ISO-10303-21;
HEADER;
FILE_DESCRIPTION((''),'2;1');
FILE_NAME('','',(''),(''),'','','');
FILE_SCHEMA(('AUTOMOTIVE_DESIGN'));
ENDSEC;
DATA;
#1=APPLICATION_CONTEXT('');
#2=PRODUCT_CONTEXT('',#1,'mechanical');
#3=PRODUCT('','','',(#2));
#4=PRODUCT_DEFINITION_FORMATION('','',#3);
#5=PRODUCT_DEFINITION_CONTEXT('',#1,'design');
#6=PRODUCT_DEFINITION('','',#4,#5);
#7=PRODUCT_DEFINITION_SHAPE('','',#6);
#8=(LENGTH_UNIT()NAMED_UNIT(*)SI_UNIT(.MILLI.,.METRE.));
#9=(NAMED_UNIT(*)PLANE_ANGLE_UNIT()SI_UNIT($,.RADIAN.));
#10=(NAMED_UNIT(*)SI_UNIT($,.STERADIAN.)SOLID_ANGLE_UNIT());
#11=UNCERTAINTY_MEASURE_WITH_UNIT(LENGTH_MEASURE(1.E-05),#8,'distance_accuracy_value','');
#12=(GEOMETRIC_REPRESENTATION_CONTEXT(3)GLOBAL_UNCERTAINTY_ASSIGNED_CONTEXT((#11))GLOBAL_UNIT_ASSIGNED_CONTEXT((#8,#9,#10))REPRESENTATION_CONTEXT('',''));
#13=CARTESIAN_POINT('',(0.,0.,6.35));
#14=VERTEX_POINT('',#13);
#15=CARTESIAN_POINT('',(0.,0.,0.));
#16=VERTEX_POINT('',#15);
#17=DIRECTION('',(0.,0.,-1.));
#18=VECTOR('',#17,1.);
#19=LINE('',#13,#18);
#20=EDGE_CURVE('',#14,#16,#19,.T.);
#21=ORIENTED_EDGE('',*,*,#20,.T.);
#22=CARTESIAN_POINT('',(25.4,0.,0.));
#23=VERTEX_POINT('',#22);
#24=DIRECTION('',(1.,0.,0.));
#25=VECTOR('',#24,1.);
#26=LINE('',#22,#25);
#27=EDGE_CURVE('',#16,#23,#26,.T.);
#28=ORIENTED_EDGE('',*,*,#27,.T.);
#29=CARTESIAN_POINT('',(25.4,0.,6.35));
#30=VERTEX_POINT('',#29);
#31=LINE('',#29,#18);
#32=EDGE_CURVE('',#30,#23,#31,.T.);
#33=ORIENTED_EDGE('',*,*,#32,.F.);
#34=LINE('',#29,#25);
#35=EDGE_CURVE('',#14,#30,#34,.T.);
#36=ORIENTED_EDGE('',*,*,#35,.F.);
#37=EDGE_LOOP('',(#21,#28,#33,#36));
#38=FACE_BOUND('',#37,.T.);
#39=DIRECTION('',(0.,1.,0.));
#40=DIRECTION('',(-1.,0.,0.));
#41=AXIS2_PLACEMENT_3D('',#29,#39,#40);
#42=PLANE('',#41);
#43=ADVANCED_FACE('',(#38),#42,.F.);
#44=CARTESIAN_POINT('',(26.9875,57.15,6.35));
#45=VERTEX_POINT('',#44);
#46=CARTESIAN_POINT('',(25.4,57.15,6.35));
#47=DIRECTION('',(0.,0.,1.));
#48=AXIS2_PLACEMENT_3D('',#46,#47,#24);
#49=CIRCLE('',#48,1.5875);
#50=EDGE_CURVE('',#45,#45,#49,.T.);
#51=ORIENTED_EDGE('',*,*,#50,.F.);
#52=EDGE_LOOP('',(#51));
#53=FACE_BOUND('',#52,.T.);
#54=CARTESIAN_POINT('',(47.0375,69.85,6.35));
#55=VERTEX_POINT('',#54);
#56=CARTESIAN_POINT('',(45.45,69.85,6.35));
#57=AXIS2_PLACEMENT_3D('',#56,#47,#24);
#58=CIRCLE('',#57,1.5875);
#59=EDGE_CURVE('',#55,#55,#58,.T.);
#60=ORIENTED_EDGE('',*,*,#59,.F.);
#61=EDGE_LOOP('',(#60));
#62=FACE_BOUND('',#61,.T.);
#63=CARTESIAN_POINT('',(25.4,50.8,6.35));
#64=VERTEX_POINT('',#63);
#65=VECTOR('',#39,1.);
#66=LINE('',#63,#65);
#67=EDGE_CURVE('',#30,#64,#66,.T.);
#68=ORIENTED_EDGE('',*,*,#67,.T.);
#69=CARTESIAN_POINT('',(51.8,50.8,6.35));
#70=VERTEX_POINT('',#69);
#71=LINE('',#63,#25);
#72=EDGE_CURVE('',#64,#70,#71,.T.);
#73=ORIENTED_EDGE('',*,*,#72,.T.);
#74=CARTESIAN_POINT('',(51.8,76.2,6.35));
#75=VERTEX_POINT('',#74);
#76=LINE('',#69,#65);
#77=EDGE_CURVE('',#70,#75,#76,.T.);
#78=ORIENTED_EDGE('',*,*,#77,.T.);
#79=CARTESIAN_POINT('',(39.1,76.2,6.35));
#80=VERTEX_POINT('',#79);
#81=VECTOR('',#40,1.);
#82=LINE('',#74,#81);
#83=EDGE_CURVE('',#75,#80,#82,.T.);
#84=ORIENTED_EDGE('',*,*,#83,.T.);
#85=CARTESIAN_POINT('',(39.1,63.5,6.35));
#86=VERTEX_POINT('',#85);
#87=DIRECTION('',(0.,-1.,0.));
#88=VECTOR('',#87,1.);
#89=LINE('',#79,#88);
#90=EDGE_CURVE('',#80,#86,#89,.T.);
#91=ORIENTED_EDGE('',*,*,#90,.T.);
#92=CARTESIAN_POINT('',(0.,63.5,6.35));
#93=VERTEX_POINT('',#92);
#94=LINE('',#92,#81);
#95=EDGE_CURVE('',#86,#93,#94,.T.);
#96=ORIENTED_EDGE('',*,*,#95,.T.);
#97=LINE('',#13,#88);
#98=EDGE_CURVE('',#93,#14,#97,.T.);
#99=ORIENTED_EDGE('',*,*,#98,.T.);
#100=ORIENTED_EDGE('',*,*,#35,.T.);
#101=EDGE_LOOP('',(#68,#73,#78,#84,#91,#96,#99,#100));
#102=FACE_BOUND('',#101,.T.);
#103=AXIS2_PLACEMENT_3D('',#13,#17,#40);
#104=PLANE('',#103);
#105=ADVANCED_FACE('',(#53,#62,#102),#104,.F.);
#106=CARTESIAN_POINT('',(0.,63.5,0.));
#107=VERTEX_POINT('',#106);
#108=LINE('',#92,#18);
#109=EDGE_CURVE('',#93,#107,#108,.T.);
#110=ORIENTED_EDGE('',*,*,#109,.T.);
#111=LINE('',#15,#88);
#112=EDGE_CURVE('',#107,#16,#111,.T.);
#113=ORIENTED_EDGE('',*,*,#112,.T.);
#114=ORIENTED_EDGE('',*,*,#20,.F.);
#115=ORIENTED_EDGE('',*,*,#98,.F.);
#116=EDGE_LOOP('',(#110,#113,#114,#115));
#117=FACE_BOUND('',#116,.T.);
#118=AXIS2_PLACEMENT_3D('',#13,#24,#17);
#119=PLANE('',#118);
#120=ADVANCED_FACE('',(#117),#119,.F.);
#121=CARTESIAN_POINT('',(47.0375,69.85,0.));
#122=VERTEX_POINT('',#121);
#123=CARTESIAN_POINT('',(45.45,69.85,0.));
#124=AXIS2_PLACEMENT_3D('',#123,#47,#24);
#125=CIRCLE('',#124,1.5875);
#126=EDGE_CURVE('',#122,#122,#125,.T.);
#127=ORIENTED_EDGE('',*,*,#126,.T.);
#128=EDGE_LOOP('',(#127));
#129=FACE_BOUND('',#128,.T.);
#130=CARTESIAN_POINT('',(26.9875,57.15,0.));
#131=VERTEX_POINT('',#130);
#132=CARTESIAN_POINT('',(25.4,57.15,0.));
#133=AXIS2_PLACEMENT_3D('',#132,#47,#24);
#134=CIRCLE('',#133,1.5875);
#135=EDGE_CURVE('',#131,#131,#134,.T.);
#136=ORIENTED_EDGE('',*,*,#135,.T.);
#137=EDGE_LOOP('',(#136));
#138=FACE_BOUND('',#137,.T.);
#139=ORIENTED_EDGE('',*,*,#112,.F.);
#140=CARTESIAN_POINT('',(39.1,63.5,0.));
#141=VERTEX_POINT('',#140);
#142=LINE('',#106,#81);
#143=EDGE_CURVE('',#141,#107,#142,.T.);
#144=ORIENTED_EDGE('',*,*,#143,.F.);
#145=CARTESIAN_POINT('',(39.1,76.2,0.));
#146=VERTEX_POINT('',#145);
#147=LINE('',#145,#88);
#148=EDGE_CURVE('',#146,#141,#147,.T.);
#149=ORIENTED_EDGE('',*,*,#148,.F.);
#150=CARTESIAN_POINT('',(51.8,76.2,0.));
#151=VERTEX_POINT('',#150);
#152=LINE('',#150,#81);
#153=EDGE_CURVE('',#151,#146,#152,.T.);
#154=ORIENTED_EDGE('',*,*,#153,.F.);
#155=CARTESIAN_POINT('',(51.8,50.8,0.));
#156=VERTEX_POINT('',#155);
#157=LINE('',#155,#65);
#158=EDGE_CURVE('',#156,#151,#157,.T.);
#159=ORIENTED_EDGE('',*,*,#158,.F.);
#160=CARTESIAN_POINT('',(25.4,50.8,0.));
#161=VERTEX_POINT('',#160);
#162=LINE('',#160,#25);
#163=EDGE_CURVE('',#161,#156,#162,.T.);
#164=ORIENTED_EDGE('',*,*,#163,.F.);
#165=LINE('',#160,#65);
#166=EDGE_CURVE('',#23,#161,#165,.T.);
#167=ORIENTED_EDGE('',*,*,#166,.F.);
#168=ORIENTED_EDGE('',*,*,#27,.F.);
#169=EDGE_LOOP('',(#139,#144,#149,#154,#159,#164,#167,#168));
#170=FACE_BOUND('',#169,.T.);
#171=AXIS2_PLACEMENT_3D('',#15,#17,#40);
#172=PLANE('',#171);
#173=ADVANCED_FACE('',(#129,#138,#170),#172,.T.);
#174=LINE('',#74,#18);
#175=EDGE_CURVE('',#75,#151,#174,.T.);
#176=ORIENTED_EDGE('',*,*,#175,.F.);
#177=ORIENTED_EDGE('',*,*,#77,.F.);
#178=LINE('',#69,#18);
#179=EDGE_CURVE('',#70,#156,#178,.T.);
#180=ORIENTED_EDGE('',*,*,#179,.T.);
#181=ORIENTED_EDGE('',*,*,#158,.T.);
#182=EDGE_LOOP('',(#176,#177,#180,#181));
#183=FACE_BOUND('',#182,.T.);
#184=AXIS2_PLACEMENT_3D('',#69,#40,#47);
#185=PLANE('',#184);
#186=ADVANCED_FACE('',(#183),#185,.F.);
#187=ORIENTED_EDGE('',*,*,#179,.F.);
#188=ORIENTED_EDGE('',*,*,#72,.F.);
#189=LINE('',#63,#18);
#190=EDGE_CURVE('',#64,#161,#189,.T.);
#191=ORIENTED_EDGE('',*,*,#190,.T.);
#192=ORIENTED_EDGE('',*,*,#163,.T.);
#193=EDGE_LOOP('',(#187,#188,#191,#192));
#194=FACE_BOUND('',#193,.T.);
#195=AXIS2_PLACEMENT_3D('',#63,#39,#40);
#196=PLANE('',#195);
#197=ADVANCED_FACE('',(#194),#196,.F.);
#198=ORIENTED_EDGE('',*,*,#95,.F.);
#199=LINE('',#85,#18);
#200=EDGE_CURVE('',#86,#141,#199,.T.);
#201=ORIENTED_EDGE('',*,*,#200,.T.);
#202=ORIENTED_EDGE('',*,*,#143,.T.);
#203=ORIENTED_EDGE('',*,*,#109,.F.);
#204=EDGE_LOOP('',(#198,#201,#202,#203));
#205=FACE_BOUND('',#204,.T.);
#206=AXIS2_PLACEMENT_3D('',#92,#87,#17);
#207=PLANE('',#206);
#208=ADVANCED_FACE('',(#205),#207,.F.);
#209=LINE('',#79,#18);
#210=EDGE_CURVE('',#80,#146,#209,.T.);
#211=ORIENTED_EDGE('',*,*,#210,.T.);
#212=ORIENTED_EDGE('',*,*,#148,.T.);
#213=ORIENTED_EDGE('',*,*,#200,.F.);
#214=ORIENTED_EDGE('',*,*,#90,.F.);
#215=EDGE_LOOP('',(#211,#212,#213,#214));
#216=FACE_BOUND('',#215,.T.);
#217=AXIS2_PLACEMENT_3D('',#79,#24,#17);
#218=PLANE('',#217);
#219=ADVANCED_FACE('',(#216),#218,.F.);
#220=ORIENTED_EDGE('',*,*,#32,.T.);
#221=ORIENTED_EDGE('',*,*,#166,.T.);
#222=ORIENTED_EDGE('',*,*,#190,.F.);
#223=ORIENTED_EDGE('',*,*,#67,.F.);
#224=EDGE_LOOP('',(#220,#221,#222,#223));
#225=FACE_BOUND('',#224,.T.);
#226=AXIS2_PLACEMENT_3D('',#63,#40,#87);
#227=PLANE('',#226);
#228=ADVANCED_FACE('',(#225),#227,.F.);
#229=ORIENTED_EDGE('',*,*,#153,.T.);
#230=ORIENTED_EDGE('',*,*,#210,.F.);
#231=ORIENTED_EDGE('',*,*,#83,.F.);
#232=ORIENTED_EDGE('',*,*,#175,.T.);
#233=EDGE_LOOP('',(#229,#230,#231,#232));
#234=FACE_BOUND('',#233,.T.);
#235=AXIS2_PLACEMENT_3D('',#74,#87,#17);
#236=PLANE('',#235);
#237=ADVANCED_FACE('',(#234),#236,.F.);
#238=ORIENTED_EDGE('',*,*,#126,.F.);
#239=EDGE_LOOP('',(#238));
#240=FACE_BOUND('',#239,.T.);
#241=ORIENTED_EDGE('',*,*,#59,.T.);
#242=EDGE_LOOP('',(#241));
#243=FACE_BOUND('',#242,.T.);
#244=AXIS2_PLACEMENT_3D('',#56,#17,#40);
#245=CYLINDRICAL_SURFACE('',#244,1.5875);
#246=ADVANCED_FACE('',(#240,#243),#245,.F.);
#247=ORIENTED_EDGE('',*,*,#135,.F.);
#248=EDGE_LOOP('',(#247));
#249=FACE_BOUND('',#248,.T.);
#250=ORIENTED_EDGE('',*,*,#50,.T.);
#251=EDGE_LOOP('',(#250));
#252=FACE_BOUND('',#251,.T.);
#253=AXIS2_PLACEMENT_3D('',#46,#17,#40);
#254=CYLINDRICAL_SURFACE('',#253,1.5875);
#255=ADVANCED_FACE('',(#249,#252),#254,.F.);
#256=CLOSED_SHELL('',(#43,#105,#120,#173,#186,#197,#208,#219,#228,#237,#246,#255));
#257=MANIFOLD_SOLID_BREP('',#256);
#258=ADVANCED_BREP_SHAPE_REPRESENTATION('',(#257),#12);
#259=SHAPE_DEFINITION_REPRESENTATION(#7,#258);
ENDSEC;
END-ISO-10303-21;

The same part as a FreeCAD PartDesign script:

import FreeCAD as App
import Part
import Sketcher
Q = App.Units.Quantity


def add_polygon(sketch, points):
    """Adds a closed chain of lines whose ends are joined by coincident constraints."""
    first, n = sketch.GeometryCount, len(points)
    for a, b in zip(points, points[1:] + points[:1]):
        sketch.addGeometry(Part.LineSegment(App.Vector(*a, 0), App.Vector(*b, 0)), False)
    for i in range(n):
        sketch.addConstraint(Sketcher.Constraint("Coincident", first + i, 2, first + (i + 1) % n, 1))

doc = App.newDocument("Part")
body = doc.addObject("PartDesign::Body", "Body")

sketch1 = body.newObject("Sketcher::SketchObject", "Sketch")
sketch1.AttachmentSupport = (doc.getObject("XY_Plane"), [""])
sketch1.MapMode = "FlatFace"
add_polygon(sketch1, [(25.4, 50.8), (51.8, 50.8), (51.8, 76.2), (39.1, 76.2), (39.1, 63.5), (0, 63.5), (0, 0), (25.4, 0)])
sketch1.addGeometry(Part.Circle(App.Vector(25.4, 57.1, 0), App.Vector(0, 0, 1), 1.6), False)
sketch1.addGeometry(Part.Circle(App.Vector(45.5, 69.8, 0), App.Vector(0, 0, 1), 1.6), False)
sketch1.addConstraint([
    Sketcher.Constraint("Horizontal", 0),
    Sketcher.Constraint("Vertical", 1),
    Sketcher.Constraint("Horizontal", 2),
    Sketcher.Constraint("Vertical", 3),
    Sketcher.Constraint("Horizontal", 4),
    Sketcher.Constraint("Vertical", 5),
    Sketcher.Constraint("Horizontal", 6),
    Sketcher.Constraint("Vertical", 7),
    Sketcher.Constraint("Coincident", 5, 2, -1, 1),
    Sketcher.Constraint("Equal", 8, 9),
    Sketcher.Constraint("Vertical", 8, 3, 6, 2),
    Sketcher.Constraint("Equal", 6, 1),
    Sketcher.Constraint("Equal", 2, 3),
    Sketcher.Constraint("DistanceX", 6, 1, 6, 2, Q("1 in")),
    Sketcher.Constraint("DistanceY", 7, 1, 7, 2, Q("2 in")),
    Sketcher.Constraint("Diameter", 8, Q("0.125 in")),
    Sketcher.Constraint("DistanceX", 2, 2, 2, 1, Q("0.5 in")),
    Sketcher.Constraint("DistanceY", 8, 3, 9, 3, Q("0.5 in")),
    Sketcher.Constraint("DistanceY", -1, 1, 8, 3, Q("2.25 in")),
    Sketcher.Constraint("DistanceX", 9, 3, 0, 2, Q("0.25 in")),
    Sketcher.Constraint("DistanceX", 0, 1, 0, 2, 26.4),
])
pad1 = body.newObject("PartDesign::Pad", "Pad")
pad1.Profile = sketch1
pad1.Length = Q("0.25 in")

doc.recompute()
